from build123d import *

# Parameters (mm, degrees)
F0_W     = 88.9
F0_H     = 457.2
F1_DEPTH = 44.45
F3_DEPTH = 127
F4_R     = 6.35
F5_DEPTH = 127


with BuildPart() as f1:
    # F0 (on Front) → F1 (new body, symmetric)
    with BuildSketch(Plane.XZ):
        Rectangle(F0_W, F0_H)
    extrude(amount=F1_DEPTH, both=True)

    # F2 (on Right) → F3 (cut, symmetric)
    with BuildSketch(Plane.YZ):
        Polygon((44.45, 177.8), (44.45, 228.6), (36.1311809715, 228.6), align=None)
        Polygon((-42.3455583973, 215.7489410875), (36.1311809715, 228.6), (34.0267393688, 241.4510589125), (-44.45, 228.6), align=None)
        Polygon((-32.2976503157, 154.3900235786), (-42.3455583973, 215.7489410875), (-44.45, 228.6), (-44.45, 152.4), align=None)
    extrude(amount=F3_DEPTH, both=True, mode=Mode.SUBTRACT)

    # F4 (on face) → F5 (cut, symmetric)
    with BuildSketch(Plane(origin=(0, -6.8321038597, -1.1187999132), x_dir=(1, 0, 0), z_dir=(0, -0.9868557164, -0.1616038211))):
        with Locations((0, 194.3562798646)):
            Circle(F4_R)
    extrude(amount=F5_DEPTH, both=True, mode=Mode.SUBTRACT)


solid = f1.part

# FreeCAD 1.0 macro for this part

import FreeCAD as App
import Part
import Sketcher
Q = App.Units.Quantity

doc = App.newDocument("Part")
params = doc.addObject("Spreadsheet::Sheet", "Params")
for row, (alias, value) in enumerate([
    ("sketch1_height", "18 in"),
    ("sketch1_width", "3.5 in"),
    ("pad1_length", "3.5 in"),
    ("sketch2_height", "2 in"),
    ("sketch2_height2", "3 in"),
    ("pocket1_length", "10 in"),
    ("sketch3_diameter", "0.5 in"),
    ("pocket2_length", "10 in"),
], start=1):
    params.set(f"A{row}", alias)
    params.set(f"B{row}", "=" + value)
    params.setAlias(f"B{row}", alias)

body = doc.addObject("PartDesign::Body", "Body")

# Sketch on XZ plane
sketch1 = body.newObject("Sketcher::SketchObject", "Sketch")
sketch1.AttachmentSupport = (doc.getObject("XZ_Plane"), [""])
sketch1.MapMode = "FlatFace"
sketch1.addGeometry([
    Part.LineSegment(App.Vector(-44, 229, 0), App.Vector(-44, -229, 0)),
    Part.LineSegment(App.Vector(-44, -229, 0), App.Vector(44, -229, 0)),
    Part.LineSegment(App.Vector(44, -229, 0), App.Vector(44, 229, 0)),
    Part.LineSegment(App.Vector(44, 229, 0), App.Vector(-44, 229, 0)),
], False)
sketch1.addConstraint([
    Sketcher.Constraint("Coincident", 0, 2, 1, 1),
    Sketcher.Constraint("Coincident", 1, 2, 2, 1),
    Sketcher.Constraint("Coincident", 2, 2, 3, 1),
    Sketcher.Constraint("Coincident", 3, 2, 0, 1),
    Sketcher.Constraint("Vertical", 0),
    Sketcher.Constraint("Horizontal", 1),
    Sketcher.Constraint("Vertical", 2),
    Sketcher.Constraint("Horizontal", 3),
    Sketcher.Constraint("Symmetric", 0, 2, 2, 2, -1, 1),
    Sketcher.Constraint("DistanceY", 0, 2, 0, 1, Q("18 in")),
    Sketcher.Constraint("DistanceX", 1, 1, 1, 2, Q("3.5 in")),
])
sketch1.setExpression("Constraints[9]", "Params.sketch1_height")
sketch1.setExpression("Constraints[10]", "Params.sketch1_width")
pad1 = body.newObject("PartDesign::Pad", "Pad")
pad1.Profile = sketch1
pad1.setExpression("Length", "Params.pad1_length")
pad1.Midplane = True

# Sketch on YZ plane
sketch2 = body.newObject("Sketcher::SketchObject", "Sketch001")
sketch2.AttachmentSupport = (doc.getObject("YZ_Plane"), [""])
sketch2.MapMode = "FlatFace"
sketch2.addGeometry([
    Part.LineSegment(App.Vector(44, 178, 0), App.Vector(44, 229, 0)),  # 0
    Part.LineSegment(App.Vector(44, 229, 0), App.Vector(36, 229, 0)),  # 1
    Part.LineSegment(App.Vector(36, 229, 0), App.Vector(44, 178, 0)),  # 2
    Part.LineSegment(App.Vector(-42, 216, 0), App.Vector(36, 229, 0)),  # 3
    Part.LineSegment(App.Vector(36, 229, 0), App.Vector(34, 241, 0)),  # 4
    Part.LineSegment(App.Vector(34, 241, 0), App.Vector(-44, 229, 0)),  # 5
    Part.LineSegment(App.Vector(-44, 229, 0), App.Vector(-44, 152, 0)),  # 6
    Part.LineSegment(App.Vector(-44, 152, 0), App.Vector(-32, 154, 0)),  # 7
    Part.LineSegment(App.Vector(-32, 154, 0), App.Vector(-42, 216, 0)),  # 8
], False)
sketch2.addConstraint([
    Sketcher.Constraint("Coincident", 0, 2, 1, 1),
    Sketcher.Constraint("Coincident", 1, 2, 2, 1),
    Sketcher.Constraint("Coincident", 2, 2, 0, 1),
    Sketcher.Constraint("Coincident", 3, 2, 4, 1),
    Sketcher.Constraint("Coincident", 4, 2, 5, 1),
    Sketcher.Constraint("Coincident", 5, 2, 6, 1),
    Sketcher.Constraint("Coincident", 6, 2, 7, 1),
    Sketcher.Constraint("Coincident", 7, 2, 8, 1),
    Sketcher.Constraint("Coincident", 8, 2, 3, 1),
    Sketcher.Constraint("Vertical", 0),
    Sketcher.Constraint("Horizontal", 1),
    Sketcher.Constraint("Vertical", 6),
    Sketcher.Constraint("Coincident", 3, 2, 1, 2),
    Sketcher.Constraint("Symmetric", 0, 2, 5, 2, -2),
    Sketcher.Constraint("Perpendicular", 2, 3),
    Sketcher.Constraint("Perpendicular", 3, 4),
    Sketcher.Constraint("Perpendicular", 4, 5),
    Sketcher.Constraint("Parallel", 5, 7),
    Sketcher.Constraint("Perpendicular", 7, 8),
    Sketcher.Constraint("Equal", 3, 5),
    Sketcher.Constraint("DistanceY", 0, 1, 0, 2, Q("2 in")),
    Sketcher.Constraint("DistanceY", 6, 2, 6, 1, Q("3 in")),
    Sketcher.Constraint("DistanceY", -1, 1, 0, 2, Q("9 in")),
    Sketcher.Constraint("Angle", 2, Q("-80.7 deg")),
    Sketcher.Constraint("DistanceX", 5, 2, 0, 2, Q("3.5 in")),
])
sketch2.setExpression("Constraints[20]", "Params.sketch2_height")
sketch2.setExpression("Constraints[21]", "Params.sketch2_height2")
pocket1 = body.newObject("PartDesign::Pocket", "Pocket")
pocket1.Profile = sketch2
pocket1.setExpression("Length", "Params.pocket1_length")
pocket1.Midplane = True

# Sketch on an angled plane
sketch3 = body.newObject("Sketcher::SketchObject", "Sketch002")
sketch3.Placement = App.Placement(App.Vector(0, -6.832104, -1.1188), App.Rotation(App.Vector(1, 0, 0), App.Vector(0, -0.161603821, 0.986855716), App.Vector(0, -0.986855716, -0.161603821), "ZXY"))
sketch3.addGeometry(Part.Circle(App.Vector(0, 194, 0), App.Vector(0, 0, 1), 6), False)
sketch3.addConstraint([
    Sketcher.Constraint("PointOnObject", 0, 3, -2),
    Sketcher.Constraint("Diameter", 0, Q("0.5 in")),
    Sketcher.Constraint("DistanceY", -1, 1, 0, 3, Q("194.35628 mm")),
])
sketch3.setExpression("Constraints[1]", "Params.sketch3_diameter")
pocket2 = body.newObject("PartDesign::Pocket", "Pocket001")
pocket2.Profile = sketch3
pocket2.setExpression("Length", "Params.pocket2_length")
pocket2.Midplane = True

doc.recompute()
